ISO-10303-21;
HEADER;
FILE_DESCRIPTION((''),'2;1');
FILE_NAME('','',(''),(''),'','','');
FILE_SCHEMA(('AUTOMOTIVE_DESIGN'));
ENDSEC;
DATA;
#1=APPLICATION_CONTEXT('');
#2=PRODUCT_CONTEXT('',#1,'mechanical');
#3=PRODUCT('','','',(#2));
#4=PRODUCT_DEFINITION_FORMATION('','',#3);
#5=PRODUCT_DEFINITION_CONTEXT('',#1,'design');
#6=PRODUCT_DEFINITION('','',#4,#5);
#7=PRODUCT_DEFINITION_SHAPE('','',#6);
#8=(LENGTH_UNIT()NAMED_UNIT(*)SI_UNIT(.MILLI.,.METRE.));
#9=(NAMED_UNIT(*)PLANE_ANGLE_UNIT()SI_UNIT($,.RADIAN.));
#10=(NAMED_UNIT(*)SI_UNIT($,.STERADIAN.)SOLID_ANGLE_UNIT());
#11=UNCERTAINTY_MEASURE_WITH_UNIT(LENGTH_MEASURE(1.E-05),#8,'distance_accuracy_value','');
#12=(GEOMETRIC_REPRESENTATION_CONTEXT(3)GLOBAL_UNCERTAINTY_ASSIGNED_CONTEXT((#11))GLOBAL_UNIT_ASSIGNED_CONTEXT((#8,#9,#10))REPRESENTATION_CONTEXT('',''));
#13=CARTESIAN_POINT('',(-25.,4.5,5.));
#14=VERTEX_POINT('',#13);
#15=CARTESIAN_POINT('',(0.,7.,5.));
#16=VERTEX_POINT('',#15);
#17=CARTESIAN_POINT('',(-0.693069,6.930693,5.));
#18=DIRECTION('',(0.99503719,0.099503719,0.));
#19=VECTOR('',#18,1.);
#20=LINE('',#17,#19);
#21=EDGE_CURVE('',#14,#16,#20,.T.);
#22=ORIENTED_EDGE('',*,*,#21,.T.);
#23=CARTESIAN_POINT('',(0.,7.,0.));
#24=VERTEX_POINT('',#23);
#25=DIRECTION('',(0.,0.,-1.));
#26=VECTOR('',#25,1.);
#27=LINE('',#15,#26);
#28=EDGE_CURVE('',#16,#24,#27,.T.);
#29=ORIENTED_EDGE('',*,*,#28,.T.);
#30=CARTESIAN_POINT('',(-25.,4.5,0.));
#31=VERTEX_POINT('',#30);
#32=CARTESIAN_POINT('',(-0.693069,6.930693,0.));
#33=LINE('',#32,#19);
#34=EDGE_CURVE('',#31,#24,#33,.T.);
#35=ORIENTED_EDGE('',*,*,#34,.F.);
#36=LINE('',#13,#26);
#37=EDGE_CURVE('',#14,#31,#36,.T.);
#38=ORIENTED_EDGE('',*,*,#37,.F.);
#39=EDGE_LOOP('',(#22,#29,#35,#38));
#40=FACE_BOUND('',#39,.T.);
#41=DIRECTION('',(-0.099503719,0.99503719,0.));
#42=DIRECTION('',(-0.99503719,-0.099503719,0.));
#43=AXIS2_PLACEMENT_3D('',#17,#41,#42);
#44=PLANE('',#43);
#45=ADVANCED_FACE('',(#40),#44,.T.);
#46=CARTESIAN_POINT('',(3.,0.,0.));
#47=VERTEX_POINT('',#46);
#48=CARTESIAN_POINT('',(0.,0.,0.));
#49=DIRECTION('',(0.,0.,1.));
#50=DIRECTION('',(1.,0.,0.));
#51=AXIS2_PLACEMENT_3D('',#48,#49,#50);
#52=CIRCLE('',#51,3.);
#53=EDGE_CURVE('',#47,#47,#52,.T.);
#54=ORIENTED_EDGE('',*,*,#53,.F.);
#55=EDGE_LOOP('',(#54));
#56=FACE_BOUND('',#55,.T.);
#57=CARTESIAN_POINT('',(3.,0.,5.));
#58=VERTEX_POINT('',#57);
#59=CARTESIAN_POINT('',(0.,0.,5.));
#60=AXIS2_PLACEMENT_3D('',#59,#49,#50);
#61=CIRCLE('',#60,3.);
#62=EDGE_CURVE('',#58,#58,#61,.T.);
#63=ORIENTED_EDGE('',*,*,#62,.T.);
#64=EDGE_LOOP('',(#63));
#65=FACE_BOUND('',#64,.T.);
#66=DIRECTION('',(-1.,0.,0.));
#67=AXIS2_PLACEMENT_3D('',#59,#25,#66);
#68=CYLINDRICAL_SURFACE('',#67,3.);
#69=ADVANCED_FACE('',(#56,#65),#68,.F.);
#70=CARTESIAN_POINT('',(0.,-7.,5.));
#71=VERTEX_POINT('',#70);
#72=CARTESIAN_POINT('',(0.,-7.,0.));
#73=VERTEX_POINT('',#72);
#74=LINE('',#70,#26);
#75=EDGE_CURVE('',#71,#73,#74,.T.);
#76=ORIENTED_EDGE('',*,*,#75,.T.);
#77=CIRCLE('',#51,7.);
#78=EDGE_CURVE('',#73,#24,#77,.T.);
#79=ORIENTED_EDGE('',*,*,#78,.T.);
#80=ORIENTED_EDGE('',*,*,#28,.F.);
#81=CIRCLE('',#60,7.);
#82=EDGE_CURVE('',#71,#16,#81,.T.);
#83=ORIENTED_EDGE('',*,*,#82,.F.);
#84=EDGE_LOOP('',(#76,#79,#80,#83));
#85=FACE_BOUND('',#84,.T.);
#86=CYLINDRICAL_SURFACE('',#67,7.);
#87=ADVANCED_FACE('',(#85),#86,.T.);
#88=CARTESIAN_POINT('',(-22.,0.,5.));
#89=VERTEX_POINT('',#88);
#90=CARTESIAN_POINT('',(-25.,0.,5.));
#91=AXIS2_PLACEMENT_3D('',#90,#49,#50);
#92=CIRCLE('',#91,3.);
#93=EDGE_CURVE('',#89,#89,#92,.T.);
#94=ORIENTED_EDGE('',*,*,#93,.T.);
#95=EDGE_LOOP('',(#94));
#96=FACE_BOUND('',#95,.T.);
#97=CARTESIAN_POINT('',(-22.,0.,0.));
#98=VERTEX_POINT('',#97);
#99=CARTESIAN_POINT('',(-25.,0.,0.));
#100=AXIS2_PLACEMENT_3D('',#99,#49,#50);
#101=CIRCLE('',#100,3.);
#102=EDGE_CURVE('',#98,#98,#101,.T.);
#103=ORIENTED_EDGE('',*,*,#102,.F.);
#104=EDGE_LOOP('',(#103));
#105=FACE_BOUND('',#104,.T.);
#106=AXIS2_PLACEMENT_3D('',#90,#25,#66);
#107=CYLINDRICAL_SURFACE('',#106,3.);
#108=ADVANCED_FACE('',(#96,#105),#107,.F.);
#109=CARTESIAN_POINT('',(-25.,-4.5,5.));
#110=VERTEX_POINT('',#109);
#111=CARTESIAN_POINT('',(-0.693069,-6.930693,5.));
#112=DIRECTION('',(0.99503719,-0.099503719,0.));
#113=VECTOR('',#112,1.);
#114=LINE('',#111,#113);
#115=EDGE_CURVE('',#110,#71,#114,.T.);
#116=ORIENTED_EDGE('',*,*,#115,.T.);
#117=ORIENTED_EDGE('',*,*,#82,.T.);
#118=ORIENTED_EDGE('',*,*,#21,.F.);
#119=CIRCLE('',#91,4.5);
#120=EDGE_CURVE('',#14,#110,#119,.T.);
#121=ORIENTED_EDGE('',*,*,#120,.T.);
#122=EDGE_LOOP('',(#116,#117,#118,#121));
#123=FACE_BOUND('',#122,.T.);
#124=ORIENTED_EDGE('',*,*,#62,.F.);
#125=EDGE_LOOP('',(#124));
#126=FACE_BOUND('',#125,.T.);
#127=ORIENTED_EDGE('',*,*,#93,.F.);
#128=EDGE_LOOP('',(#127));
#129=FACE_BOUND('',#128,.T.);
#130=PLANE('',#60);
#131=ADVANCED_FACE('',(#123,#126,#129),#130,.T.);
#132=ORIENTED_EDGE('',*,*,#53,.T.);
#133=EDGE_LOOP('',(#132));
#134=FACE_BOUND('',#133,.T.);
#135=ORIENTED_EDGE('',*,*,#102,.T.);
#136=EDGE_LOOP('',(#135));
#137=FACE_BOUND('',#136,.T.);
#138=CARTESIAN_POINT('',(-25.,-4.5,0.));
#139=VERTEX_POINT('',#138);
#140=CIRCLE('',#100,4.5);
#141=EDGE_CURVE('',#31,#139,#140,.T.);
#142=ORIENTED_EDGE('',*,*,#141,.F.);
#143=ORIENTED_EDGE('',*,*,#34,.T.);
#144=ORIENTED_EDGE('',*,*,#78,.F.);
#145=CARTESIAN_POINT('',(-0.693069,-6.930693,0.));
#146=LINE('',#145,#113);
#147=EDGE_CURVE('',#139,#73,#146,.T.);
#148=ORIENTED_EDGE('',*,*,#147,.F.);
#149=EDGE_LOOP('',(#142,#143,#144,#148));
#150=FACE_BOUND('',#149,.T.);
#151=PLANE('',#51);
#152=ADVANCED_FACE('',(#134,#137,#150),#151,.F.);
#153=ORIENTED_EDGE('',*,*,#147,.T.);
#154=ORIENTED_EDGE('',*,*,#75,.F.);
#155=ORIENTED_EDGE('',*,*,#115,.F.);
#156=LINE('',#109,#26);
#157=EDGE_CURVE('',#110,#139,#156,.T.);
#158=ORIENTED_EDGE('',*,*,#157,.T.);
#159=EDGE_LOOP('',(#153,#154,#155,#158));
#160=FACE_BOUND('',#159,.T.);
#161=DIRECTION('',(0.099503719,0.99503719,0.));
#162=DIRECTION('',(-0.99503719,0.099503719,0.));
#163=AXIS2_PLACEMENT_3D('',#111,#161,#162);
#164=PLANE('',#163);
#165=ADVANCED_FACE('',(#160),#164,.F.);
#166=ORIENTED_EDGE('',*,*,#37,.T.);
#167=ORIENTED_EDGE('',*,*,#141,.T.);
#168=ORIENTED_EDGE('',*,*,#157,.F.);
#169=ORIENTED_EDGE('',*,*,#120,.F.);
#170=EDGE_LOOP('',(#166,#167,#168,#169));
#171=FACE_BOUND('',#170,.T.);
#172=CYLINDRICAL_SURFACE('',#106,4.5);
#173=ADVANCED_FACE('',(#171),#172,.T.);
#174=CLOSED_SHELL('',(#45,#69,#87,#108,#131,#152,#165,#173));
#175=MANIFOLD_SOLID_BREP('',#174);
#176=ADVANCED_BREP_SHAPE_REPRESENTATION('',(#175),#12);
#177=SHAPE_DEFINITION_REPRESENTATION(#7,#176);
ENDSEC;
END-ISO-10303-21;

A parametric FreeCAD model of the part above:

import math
import FreeCAD as App
import Part
import Sketcher

V = App.Vector

doc = App.newDocument("Part")
params = doc.addObject("Spreadsheet::Sheet", "Params")
for row, (alias, value) in enumerate([
    ("sketch1_diameter", "6 mm"),
    ("sketch1_radius", "7 mm"),
    ("sketch1_radius2", "4.5 mm"),
    ("pad1_length", "5 mm"),
], start=1):
    params.set(f"A{row}", alias)
    params.set(f"B{row}", "=" + value)
    params.setAlias(f"B{row}", alias)

body = doc.addObject("PartDesign::Body", "Body")

# Sketch on XY plane
sketch1 = body.newObject("Sketcher::SketchObject", "Sketch")
sketch1.AttachmentSupport = (doc.getObject("XY_Plane"), [""])
sketch1.MapMode = "FlatFace"
sketch1.addGeometry(Part.LineSegment(V(-1.4, 6.9, 0), V(-25, 4.5, 0)), False)
sketch1.addGeometry(Part.ArcOfCircle(Part.Circle(V(-25, 0, 0), V(0, 0, 1), 4.5), math.radians(90), math.radians(270)), False)
sketch1.addGeometry(Part.LineSegment(V(-25, -4.5, 0), V(-1.4, -6.9, 0)), False)
sketch1.addGeometry(Part.LineSegment(V(-1.4, -6.9, 0), V(0, -7, 0)), False)
sketch1.addGeometry(Part.ArcOfCircle(Part.Circle(V(0, 0, 0), V(0, 0, 1), 7), math.radians(-90), math.radians(0)), False)
sketch1.addGeometry(Part.ArcOfCircle(Part.Circle(V(0, 0, 0), V(0, 0, 1), 7), math.radians(0), math.radians(90)), False)
sketch1.addGeometry(Part.LineSegment(V(0, 7, 0), V(-1.4, 6.9, 0)), False)
sketch1.addGeometry(Part.Circle(V(-25, 0, 0), V(0, 0, 1), 3), False)
sketch1.addGeometry(Part.Circle(V(0, 0, 0), V(0, 0, 1), 3), False)
sketch1.addConstraint(Sketcher.Constraint("Coincident", 0, 2, 1, 1))
sketch1.addConstraint(Sketcher.Constraint("Coincident", 1, 2, 2, 1))
sketch1.addConstraint(Sketcher.Constraint("Coincident", 2, 2, 3, 1))
sketch1.addConstraint(Sketcher.Constraint("Coincident", 3, 2, 4, 1))
sketch1.addConstraint(Sketcher.Constraint("Tangent", 4, 2, 5, 1))
sketch1.addConstraint(Sketcher.Constraint("Coincident", 5, 2, 6, 1))
sketch1.addConstraint(Sketcher.Constraint("Coincident", 6, 2, 0, 1))
sketch1.addConstraint(Sketcher.Constraint("Coincident", 4, 3, -1, 1))
sketch1.addConstraint(Sketcher.Constraint("Coincident", 8, 3, -1, 1))
sketch1.addConstraint(Sketcher.Constraint("Coincident", 7, 3, 1, 3))
sketch1.addConstraint(Sketcher.Constraint("Equal", 4, 5))
sketch1.addConstraint(Sketcher.Constraint("Equal", 7, 8))
sketch1.addConstraint(Sketcher.Constraint("Symmetric", 0, 2, 1, 2, -1))
sketch1.addConstraint(Sketcher.Constraint("Symmetric", 2, 2, 6, 2, -1))
sketch1.addConstraint(Sketcher.Constraint("PointOnObject", 3, 2, -2))
sketch1.addConstraint(Sketcher.Constraint("PointOnObject", 4, 2, -1))
sketch1.addConstraint(Sketcher.Constraint("PointOnObject", 5, 2, -2))
sketch1.addConstraint(Sketcher.Constraint("Parallel", 2, 3))
sketch1.addConstraint(Sketcher.Constraint("Vertical", 7, 3, 0, 2))
sketch1.addConstraint(Sketcher.Constraint("Diameter", 7, 6.0))
sketch1.addConstraint(Sketcher.Constraint("Radius", 4, 7.0))
sketch1.addConstraint(Sketcher.Constraint("Radius", 1, 4.5))
sketch1.addConstraint(Sketcher.Constraint("DistanceX", 1, 3, -1, 1, 25.0))
sketch1.addConstraint(Sketcher.Constraint("DistanceX", 2, 2, -1, 1, 1.386139))
sketch1.setExpression("Constraints[19]", "Params.sketch1_diameter")
sketch1.setExpression("Constraints[20]", "Params.sketch1_radius")
sketch1.setExpression("Constraints[21]", "Params.sketch1_radius2")
pad1 = body.newObject("PartDesign::Pad", "Pad")
pad1.Profile = sketch1
pad1.setExpression("Length", "Params.pad1_length")

doc.recompute()
